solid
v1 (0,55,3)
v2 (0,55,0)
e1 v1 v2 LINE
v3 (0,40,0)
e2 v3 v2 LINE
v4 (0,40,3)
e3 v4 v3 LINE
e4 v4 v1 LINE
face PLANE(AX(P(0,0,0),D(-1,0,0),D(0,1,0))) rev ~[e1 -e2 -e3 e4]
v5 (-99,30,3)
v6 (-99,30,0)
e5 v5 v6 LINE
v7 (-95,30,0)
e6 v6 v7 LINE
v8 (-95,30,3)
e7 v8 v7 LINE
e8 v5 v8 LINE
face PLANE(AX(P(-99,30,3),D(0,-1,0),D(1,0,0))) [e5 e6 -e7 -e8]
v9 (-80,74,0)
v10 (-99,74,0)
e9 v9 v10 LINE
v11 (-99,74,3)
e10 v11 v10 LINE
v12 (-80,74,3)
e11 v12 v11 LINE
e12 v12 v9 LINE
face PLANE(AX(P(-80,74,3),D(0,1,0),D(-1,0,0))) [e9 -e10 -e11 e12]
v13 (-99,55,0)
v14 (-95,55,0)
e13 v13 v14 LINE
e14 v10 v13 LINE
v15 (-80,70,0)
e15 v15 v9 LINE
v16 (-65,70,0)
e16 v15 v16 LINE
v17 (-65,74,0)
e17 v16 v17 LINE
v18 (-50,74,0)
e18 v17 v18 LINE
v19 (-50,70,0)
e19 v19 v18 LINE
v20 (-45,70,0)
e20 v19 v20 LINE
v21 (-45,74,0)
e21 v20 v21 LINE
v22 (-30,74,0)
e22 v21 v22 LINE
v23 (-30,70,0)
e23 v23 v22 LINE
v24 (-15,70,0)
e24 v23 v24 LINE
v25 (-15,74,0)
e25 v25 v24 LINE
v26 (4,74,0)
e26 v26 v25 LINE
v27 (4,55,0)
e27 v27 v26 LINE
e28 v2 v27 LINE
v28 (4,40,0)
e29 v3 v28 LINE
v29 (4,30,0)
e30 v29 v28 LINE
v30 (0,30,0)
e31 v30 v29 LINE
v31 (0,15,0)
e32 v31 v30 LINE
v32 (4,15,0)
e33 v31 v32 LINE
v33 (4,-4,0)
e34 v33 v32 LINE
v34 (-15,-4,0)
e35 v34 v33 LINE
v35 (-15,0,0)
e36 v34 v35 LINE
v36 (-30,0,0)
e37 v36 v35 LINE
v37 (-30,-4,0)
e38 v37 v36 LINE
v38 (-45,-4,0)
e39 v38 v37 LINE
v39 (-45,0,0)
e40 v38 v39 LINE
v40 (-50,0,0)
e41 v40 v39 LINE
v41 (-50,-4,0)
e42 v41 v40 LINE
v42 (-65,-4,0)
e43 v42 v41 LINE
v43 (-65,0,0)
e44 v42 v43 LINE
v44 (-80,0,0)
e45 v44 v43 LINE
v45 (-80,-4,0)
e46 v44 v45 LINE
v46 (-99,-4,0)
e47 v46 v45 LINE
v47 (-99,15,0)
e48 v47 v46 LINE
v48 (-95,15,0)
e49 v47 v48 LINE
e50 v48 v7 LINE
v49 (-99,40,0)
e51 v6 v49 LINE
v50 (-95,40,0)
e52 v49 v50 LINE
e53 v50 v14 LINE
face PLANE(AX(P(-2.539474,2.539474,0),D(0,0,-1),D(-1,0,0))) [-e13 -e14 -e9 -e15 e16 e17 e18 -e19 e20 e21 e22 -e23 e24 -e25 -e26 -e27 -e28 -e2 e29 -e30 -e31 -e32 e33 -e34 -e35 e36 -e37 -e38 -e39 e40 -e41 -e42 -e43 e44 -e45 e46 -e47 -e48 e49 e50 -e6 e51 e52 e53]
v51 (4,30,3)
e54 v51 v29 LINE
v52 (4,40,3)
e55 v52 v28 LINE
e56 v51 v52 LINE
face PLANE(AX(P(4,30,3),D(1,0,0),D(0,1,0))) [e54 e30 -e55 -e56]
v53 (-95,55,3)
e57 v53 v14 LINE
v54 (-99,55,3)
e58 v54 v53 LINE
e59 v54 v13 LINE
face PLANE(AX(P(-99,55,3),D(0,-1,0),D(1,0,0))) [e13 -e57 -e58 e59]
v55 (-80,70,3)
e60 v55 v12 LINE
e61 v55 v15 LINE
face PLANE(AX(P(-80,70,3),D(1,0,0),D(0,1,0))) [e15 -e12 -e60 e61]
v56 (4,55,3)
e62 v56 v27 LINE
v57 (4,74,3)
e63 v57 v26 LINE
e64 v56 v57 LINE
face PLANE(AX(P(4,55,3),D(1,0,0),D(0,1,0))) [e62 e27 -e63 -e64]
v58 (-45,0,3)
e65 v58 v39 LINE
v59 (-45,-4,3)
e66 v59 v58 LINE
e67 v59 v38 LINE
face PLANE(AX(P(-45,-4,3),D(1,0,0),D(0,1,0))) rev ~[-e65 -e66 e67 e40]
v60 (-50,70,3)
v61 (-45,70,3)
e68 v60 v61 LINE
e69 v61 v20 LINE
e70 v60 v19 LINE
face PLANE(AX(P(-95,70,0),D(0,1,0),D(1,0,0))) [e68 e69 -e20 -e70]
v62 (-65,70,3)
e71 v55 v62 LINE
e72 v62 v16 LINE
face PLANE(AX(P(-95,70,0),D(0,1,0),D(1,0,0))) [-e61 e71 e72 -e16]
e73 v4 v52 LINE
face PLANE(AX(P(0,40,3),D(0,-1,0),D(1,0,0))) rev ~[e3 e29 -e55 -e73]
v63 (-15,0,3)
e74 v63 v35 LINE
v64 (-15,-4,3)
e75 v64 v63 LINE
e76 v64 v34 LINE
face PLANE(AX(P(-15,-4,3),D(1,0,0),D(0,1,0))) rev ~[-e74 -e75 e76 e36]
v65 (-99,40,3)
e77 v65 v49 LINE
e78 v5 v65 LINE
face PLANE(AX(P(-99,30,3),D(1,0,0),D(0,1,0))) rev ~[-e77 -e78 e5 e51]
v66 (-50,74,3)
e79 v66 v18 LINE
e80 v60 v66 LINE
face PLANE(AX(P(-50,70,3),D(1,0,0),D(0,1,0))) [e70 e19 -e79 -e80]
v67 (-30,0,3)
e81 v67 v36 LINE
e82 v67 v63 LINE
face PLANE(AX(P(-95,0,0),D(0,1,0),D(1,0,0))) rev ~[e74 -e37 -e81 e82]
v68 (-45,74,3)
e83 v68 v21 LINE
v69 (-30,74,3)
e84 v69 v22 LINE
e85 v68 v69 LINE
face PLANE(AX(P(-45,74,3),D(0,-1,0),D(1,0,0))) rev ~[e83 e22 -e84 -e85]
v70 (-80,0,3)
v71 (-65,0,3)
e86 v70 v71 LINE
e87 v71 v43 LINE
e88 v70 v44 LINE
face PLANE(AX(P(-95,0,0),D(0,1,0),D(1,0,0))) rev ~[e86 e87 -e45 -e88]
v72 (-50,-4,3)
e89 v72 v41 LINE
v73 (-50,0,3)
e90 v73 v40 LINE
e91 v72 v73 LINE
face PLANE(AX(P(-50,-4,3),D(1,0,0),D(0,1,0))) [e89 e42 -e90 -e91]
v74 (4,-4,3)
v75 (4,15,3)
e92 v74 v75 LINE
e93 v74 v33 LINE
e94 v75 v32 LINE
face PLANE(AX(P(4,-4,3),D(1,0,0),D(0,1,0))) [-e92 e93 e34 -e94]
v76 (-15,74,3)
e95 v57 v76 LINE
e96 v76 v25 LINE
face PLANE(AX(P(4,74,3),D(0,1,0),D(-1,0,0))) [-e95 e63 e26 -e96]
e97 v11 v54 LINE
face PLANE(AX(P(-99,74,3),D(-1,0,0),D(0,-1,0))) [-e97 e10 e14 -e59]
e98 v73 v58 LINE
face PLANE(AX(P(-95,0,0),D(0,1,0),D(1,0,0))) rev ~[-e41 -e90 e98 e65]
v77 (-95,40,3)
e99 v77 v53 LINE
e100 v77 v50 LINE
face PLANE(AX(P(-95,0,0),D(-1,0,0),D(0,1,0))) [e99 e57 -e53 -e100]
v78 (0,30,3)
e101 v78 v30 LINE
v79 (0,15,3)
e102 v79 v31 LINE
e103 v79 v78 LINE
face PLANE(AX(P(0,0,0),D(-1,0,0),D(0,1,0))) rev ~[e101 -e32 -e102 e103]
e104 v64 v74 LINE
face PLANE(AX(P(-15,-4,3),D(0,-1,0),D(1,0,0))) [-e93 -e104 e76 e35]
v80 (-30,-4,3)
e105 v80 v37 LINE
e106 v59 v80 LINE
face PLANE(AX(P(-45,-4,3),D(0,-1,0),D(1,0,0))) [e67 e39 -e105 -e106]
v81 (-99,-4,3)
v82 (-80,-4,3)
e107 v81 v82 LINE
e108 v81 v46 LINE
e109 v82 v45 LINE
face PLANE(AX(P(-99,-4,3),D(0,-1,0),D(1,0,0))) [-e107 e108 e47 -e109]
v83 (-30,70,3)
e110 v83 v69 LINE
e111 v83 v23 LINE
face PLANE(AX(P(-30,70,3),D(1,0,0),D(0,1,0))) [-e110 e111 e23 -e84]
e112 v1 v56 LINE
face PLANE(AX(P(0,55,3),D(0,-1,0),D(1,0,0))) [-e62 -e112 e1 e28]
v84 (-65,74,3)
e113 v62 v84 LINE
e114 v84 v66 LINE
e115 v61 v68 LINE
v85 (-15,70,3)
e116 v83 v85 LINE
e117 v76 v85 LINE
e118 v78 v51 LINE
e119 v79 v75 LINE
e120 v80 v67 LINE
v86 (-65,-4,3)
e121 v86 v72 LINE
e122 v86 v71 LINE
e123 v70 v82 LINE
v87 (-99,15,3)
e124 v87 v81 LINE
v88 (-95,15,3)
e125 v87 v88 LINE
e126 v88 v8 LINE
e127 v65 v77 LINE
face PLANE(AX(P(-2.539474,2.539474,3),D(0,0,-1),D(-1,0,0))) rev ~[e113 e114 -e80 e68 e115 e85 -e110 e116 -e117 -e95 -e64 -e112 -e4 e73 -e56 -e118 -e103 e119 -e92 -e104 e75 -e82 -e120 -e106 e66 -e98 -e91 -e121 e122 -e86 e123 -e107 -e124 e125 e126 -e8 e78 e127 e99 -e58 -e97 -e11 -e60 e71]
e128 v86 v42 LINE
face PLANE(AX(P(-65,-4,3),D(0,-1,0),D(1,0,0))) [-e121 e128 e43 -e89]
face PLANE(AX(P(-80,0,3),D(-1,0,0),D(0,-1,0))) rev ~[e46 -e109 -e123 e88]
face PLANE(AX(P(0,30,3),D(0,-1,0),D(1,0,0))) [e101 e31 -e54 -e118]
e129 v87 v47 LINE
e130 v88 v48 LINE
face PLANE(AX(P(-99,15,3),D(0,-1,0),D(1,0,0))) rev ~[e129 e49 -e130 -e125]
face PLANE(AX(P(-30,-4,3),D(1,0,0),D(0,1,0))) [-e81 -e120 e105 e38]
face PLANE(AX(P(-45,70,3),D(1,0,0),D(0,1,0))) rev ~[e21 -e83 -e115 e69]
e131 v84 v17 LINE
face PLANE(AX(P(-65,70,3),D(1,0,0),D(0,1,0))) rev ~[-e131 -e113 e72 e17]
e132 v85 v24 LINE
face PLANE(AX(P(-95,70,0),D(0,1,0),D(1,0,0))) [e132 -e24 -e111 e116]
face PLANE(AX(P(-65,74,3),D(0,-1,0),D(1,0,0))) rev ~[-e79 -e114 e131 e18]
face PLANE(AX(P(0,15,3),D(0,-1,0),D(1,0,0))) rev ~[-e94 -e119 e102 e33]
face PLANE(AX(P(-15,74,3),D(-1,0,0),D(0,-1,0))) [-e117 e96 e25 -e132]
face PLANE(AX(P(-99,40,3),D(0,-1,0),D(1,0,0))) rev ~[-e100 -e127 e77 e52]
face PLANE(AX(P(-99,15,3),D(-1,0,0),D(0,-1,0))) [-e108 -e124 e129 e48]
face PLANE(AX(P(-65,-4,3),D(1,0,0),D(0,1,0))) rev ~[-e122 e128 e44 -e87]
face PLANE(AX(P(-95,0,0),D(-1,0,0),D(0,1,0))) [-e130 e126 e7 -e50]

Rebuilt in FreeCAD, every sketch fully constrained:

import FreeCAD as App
import Part
import Sketcher


def add_polygon(sketch, points):
    """Adds a closed chain of lines whose ends are joined by coincident constraints."""
    first, n = sketch.GeometryCount, len(points)
    for a, b in zip(points, points[1:] + points[:1]):
        sketch.addGeometry(Part.LineSegment(App.Vector(*a, 0), App.Vector(*b, 0)), False)
    for i in range(n):
        sketch.addConstraint(Sketcher.Constraint("Coincident", first + i, 2, first + (i + 1) % n, 1))

doc = App.newDocument("Part")
body = doc.addObject("PartDesign::Body", "Body")

sketch1 = body.newObject("Sketcher::SketchObject", "Sketch")
sketch1.AttachmentSupport = (doc.getObject("XY_Plane"), [""])
sketch1.MapMode = "FlatFace"
add_polygon(sketch1, [(-95, 70), (-95, 0), (0, 0), (0, 70)])
sketch1.addConstraint([
    Sketcher.Constraint("Vertical", 0),
    Sketcher.Constraint("Horizontal", 1),
    Sketcher.Constraint("Vertical", 2),
    Sketcher.Constraint("Horizontal", 3),
    Sketcher.Constraint("Coincident", 1, 2, -1, 1),
    Sketcher.Constraint("DistanceX", 1, 1, 1, 2, 95.0),
    Sketcher.Constraint("DistanceY", 0, 2, 0, 1, 70.0),
])
pad1 = body.newObject("PartDesign::Pad", "Pad")
pad1.Profile = sketch1
pad1.Length = 3

sketch2 = body.newObject("Sketcher::SketchObject", "Sketch001")
sketch2.AttachmentSupport = (doc.getObject("XY_Plane"), [""])
sketch2.MapMode = "FlatFace"
sketch2.AttachmentOffset = App.Placement(App.Vector(0, 0, 3), App.Rotation())
add_polygon(sketch2, [(4, 15), (0, 15), (0, 0), (-15, 0), (-15, -4), (4, -4)])
add_polygon(sketch2, [(0, 40), (0, 30), (4, 30), (4, 40)])
add_polygon(sketch2, [(-95, 70), (-80, 70), (-80, 74), (-99, 74), (-99, 55), (-95, 55)])
add_polygon(sketch2, [(-15, 74), (-15, 70), (0, 70), (0, 55), (4, 55), (4, 74)])
add_polygon(sketch2, [(-65, 74), (-65, 70), (-50, 70), (-50, 74)])
add_polygon(sketch2, [(-45, 74), (-45, 70), (-30, 70), (-30, 74)])
add_polygon(sketch2, [(-45, 0), (-45, -4), (-30, -4), (-30, 0)])
add_polygon(sketch2, [(-65, 0), (-65, -4), (-50, -4), (-50, 0)])
add_polygon(sketch2, [(-99, -4), (-80, -4), (-80, 0), (-95, 0), (-95, 15), (-99, 15)])
add_polygon(sketch2, [(-99, 40), (-99, 30), (-95, 30), (-95, 40)])
sketch2.addConstraint([
    Sketcher.Constraint("Horizontal", 0),
    Sketcher.Constraint("Vertical", 1),
    Sketcher.Constraint("Horizontal", 2),
    Sketcher.Constraint("Vertical", 3),
    Sketcher.Constraint("Horizontal", 4),
    Sketcher.Constraint("Vertical", 5),
    Sketcher.Constraint("Vertical", 6),
    Sketcher.Constraint("Horizontal", 7),
    Sketcher.Constraint("Vertical", 8),
    Sketcher.Constraint("Horizontal", 9),
    Sketcher.Constraint("Horizontal", 10),
    Sketcher.Constraint("Vertical", 11),
    Sketcher.Constraint("Horizontal", 12),
    Sketcher.Constraint("Vertical", 13),
    Sketcher.Constraint("Horizontal", 14),
    Sketcher.Constraint("Vertical", 15),
    Sketcher.Constraint("Vertical", 16),
    Sketcher.Constraint("Horizontal", 17),
    Sketcher.Constraint("Vertical", 18),
    Sketcher.Constraint("Horizontal", 19),
    Sketcher.Constraint("Vertical", 20),
    Sketcher.Constraint("Horizontal", 21),
    Sketcher.Constraint("Vertical", 22),
    Sketcher.Constraint("Horizontal", 23),
    Sketcher.Constraint("Vertical", 24),
    Sketcher.Constraint("Horizontal", 25),
    Sketcher.Constraint("Vertical", 26),
    Sketcher.Constraint("Horizontal", 27),
    Sketcher.Constraint("Vertical", 28),
    Sketcher.Constraint("Horizontal", 29),
    Sketcher.Constraint("Vertical", 30),
    Sketcher.Constraint("Horizontal", 31),
    Sketcher.Constraint("Vertical", 32),
    Sketcher.Constraint("Horizontal", 33),
    Sketcher.Constraint("Vertical", 34),
    Sketcher.Constraint("Horizontal", 35),
    Sketcher.Constraint("Vertical", 36),
    Sketcher.Constraint("Horizontal", 37),
    Sketcher.Constraint("Horizontal", 38),
    Sketcher.Constraint("Vertical", 39),
    Sketcher.Constraint("Horizontal", 40),
    Sketcher.Constraint("Vertical", 41),
    Sketcher.Constraint("Horizontal", 42),
    Sketcher.Constraint("Vertical", 43),
    Sketcher.Constraint("Vertical", 44),
    Sketcher.Constraint("Horizontal", 45),
    Sketcher.Constraint("Vertical", 46),
    Sketcher.Constraint("Horizontal", 47),
    Sketcher.Constraint("Coincident", 1, 2, -1, 1),
    Sketcher.Constraint("PointOnObject", 6, 2, -2),
    Sketcher.Constraint("PointOnObject", 17, 2, -2),
    Sketcher.Constraint("PointOnObject", 32, 2, -1),
    Sketcher.Constraint("PointOnObject", 36, 2, -1),
    Sketcher.Constraint("PointOnObject", 39, 2, -1),
    Sketcher.Constraint("Horizontal", 15, 2, 16, 2),
    Sketcher.Constraint("Horizontal", 14, 2, 18, 2),
    Sketcher.Constraint("Horizontal", 12, 2, 20, 2),
    Sketcher.Constraint("Horizontal", 17, 2, 22, 2),
    Sketcher.Constraint("Horizontal", 21, 2, 24, 2),
    Sketcher.Constraint("Horizontal", 23, 2, 26, 2),
    Sketcher.Constraint("Horizontal", 25, 2, 28, 2),
    Sketcher.Constraint("Horizontal", 4, 2, 30, 2),
    Sketcher.Constraint("Horizontal", 31, 2, 34, 2),
    Sketcher.Constraint("Horizontal", 35, 2, 38, 2),
    Sketcher.Constraint("Horizontal", 5, 2, 41, 2),
    Sketcher.Constraint("Horizontal", 7, 2, 44, 2),
    Sketcher.Constraint("Horizontal", 9, 2, 46, 2),
    Sketcher.Constraint("Vertical", 5, 2, 7, 2),
    Sketcher.Constraint("Vertical", 3, 2, 16, 2),
    Sketcher.Constraint("Vertical", 8, 2, 19, 2),
    Sketcher.Constraint("Vertical", 29, 2, 30, 2),
    Sketcher.Constraint("Vertical", 28, 2, 31, 2),
    Sketcher.Constraint("Vertical", 25, 2, 34, 2),
    Sketcher.Constraint("Vertical", 24, 2, 35, 2),
    Sketcher.Constraint("Vertical", 11, 2, 38, 2),
    Sketcher.Constraint("Vertical", 15, 2, 40, 2),
    Sketcher.Constraint("Vertical", 13, 2, 42, 2),
    Sketcher.Constraint("Vertical", 43, 2, 44, 2),
    Sketcher.Constraint("Vertical", 41, 2, 45, 2),
    Sketcher.Constraint("Equal", 2, 10),
    Sketcher.Constraint("Equal", 4, 12),
    Sketcher.Constraint("Equal", 17, 23),
    Sketcher.Constraint("Equal", 25, 27),
    Sketcher.Constraint("Equal", 40, 1),
    Sketcher.Constraint("Equal", 47, 3),
    Sketcher.Constraint("Equal", 3, 11),
    Sketcher.Constraint("Equal", 5, 13),
    Sketcher.Constraint("DistanceX", 0, 2, 0, 1, 4.0),
    Sketcher.Constraint("DistanceX", 2, 2, 2, 1, 15.0),
    Sketcher.Constraint("DistanceY", 6, 2, 6, 1, 10.0),
    Sketcher.Constraint("DistanceY", -1, 1, 6, 2, 30.0),
    Sketcher.Constraint("DistanceX", 10, 2, -1, 1, 80.0),
    Sketcher.Constraint("DistanceY", -1, 1, 10, 2, 70.0),
    Sketcher.Constraint("DistanceX", 22, 2, -1, 1, 65.0),
    Sketcher.Constraint("DistanceX", 26, 2, -1, 1, 45.0),
])
pad2 = body.newObject("PartDesign::Pad", "Pad001")
pad2.Profile = sketch2
pad2.Length = 3
pad2.Reversed = True

doc.recompute()
